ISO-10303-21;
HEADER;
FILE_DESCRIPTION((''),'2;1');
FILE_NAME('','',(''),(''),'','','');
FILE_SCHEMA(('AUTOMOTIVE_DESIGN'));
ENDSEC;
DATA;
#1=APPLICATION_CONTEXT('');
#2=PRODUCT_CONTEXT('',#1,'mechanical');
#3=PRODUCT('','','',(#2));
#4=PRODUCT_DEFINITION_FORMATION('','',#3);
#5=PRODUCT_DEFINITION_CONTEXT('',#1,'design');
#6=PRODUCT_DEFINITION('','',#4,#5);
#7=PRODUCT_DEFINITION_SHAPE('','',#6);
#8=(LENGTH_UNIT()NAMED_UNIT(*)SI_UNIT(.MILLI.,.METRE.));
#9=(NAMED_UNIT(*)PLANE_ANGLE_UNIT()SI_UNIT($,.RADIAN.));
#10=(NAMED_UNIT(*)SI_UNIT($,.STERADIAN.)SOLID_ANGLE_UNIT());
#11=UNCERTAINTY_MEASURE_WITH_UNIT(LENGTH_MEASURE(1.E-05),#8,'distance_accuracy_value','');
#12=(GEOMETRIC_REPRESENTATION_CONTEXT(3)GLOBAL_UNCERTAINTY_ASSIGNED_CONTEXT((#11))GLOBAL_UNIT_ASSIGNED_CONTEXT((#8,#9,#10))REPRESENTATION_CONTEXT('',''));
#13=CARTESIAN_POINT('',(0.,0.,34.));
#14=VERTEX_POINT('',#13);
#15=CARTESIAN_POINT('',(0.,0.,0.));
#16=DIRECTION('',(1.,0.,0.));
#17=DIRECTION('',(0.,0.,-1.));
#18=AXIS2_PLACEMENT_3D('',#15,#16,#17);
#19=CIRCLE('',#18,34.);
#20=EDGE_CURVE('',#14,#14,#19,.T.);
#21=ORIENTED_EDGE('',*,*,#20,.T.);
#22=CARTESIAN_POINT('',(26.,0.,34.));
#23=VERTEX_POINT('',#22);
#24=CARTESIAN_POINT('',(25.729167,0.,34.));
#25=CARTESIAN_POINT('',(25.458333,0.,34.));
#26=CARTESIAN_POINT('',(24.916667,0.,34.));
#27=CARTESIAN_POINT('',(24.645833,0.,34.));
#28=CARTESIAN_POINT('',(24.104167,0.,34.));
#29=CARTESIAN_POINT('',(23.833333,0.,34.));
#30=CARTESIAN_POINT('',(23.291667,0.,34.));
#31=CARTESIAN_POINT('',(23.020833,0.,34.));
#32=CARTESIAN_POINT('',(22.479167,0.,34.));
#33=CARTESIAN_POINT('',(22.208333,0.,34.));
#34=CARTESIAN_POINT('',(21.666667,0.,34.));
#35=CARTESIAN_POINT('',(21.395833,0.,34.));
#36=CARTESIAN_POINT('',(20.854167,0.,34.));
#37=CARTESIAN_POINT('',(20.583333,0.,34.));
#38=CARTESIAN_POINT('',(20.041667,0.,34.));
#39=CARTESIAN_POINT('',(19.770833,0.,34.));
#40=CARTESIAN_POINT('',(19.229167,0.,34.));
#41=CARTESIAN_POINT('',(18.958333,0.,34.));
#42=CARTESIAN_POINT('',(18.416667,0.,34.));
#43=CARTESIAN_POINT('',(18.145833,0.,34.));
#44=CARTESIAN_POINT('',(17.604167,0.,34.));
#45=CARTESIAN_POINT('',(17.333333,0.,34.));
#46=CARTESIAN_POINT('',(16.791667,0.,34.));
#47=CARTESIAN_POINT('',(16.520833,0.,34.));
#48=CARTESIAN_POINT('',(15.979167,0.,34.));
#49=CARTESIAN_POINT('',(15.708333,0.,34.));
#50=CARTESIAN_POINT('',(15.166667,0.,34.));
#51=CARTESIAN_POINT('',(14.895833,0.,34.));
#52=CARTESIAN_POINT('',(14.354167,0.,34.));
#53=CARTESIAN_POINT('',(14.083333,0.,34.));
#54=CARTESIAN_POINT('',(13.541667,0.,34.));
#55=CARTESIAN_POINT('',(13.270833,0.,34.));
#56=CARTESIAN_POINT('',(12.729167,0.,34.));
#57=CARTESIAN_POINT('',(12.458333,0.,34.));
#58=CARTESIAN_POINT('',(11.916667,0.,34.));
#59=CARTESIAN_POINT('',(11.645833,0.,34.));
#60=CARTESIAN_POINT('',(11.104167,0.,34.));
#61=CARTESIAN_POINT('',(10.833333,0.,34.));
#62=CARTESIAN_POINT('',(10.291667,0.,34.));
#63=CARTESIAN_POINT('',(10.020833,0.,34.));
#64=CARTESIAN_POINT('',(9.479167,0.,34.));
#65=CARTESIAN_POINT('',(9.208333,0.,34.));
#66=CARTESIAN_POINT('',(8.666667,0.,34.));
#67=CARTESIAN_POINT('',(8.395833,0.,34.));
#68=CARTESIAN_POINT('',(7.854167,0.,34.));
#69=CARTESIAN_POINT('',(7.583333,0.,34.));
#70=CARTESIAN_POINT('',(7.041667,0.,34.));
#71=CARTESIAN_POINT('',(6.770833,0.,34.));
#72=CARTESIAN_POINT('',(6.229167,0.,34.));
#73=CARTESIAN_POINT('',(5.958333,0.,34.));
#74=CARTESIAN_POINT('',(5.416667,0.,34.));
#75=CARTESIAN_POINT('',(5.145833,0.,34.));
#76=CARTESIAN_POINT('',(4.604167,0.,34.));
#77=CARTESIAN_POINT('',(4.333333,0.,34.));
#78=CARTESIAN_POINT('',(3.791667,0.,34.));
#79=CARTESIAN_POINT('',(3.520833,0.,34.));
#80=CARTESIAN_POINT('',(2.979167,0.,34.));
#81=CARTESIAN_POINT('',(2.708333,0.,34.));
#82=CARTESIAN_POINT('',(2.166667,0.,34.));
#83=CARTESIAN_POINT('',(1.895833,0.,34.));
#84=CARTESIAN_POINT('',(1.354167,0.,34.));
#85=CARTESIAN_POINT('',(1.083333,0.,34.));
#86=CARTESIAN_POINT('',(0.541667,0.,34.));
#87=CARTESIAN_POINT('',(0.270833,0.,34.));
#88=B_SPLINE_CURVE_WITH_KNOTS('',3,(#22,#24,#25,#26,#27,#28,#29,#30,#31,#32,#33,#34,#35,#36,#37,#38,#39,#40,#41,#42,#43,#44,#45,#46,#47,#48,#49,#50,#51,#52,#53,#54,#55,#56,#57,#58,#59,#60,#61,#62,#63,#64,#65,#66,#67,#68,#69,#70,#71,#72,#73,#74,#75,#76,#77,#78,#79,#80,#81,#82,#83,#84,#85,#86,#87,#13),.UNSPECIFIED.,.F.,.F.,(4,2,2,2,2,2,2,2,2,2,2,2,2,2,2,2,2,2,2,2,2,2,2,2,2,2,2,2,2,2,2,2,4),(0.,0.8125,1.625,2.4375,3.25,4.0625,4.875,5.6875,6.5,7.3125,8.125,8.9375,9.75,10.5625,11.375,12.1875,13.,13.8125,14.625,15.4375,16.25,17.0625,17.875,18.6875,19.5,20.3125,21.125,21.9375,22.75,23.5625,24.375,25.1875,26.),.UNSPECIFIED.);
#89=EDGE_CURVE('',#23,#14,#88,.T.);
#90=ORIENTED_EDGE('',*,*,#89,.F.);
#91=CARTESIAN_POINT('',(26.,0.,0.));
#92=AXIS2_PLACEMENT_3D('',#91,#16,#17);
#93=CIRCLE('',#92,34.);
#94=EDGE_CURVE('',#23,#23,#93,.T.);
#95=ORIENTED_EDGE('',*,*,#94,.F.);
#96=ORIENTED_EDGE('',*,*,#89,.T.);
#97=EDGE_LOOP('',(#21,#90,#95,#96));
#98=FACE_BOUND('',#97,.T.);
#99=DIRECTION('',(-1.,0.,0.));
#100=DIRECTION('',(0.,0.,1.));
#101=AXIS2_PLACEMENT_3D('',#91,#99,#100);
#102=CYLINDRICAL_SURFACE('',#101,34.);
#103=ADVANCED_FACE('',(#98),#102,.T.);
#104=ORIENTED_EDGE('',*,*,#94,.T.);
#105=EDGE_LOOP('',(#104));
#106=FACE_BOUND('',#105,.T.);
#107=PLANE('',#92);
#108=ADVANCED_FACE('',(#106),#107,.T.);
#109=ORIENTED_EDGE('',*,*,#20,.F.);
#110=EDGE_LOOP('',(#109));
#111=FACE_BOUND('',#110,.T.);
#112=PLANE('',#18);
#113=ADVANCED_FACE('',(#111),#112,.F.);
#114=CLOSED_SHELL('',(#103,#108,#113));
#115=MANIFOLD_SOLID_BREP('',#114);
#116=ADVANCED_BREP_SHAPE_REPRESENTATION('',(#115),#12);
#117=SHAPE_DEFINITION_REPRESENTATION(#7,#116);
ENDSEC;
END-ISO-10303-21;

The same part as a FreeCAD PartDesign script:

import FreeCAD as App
import Part
import Sketcher
from FreeCAD import Vector
Q = App.Units.Quantity

doc = App.newDocument("Part")
body = doc.addObject("PartDesign::Body", "Body")

# Sketch on YZ plane
sketch1 = body.newObject("Sketcher::SketchObject", "Sketch")
sketch1.AttachmentSupport = (doc.getObject("YZ_Plane"), [""])
sketch1.MapMode = "FlatFace"
sketch1.addGeometry(Part.Circle(Vector(0, 0, 0), Vector(0, 0, 1), 34), False)
sketch1.addConstraint([
    Sketcher.Constraint("Coincident", 0, 3, -1, 1),
    Sketcher.Constraint("Diameter", 0, Q("68 mm")),
])
pad1 = body.newObject("PartDesign::Pad", "Pad")
pad1.Profile = sketch1
pad1.Length = 26

doc.recompute()
